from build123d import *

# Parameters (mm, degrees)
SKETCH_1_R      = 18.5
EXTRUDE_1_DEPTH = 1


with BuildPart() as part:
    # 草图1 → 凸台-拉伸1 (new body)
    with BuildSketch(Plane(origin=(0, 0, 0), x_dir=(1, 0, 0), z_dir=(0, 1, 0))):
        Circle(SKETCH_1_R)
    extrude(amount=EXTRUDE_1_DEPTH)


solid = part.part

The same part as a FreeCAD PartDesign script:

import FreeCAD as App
import Part
import Sketcher
from FreeCAD import Vector
Q = App.Units.Quantity

doc = App.newDocument("Part")
body = doc.addObject("PartDesign::Body", "Body")

# Sketch on XZ plane
sketch1 = body.newObject("Sketcher::SketchObject", "Sketch")
sketch1.AttachmentSupport = (doc.getObject("XZ_Plane"), [""])
sketch1.MapMode = "FlatFace"
sketch1.addGeometry(Part.Circle(Vector(0, 0, 0), Vector(0, 0, 1), 18), False)
sketch1.addConstraint(Sketcher.Constraint("Coincident", 0, 3, -1, 1))
sketch1.addConstraint(Sketcher.Constraint("Diameter", 0, Q("37 mm")))
pad1 = body.newObject("PartDesign::Pad", "Pad")
pad1.Profile = sketch1
pad1.Length = 1
pad1.Reversed = True

doc.recompute()
